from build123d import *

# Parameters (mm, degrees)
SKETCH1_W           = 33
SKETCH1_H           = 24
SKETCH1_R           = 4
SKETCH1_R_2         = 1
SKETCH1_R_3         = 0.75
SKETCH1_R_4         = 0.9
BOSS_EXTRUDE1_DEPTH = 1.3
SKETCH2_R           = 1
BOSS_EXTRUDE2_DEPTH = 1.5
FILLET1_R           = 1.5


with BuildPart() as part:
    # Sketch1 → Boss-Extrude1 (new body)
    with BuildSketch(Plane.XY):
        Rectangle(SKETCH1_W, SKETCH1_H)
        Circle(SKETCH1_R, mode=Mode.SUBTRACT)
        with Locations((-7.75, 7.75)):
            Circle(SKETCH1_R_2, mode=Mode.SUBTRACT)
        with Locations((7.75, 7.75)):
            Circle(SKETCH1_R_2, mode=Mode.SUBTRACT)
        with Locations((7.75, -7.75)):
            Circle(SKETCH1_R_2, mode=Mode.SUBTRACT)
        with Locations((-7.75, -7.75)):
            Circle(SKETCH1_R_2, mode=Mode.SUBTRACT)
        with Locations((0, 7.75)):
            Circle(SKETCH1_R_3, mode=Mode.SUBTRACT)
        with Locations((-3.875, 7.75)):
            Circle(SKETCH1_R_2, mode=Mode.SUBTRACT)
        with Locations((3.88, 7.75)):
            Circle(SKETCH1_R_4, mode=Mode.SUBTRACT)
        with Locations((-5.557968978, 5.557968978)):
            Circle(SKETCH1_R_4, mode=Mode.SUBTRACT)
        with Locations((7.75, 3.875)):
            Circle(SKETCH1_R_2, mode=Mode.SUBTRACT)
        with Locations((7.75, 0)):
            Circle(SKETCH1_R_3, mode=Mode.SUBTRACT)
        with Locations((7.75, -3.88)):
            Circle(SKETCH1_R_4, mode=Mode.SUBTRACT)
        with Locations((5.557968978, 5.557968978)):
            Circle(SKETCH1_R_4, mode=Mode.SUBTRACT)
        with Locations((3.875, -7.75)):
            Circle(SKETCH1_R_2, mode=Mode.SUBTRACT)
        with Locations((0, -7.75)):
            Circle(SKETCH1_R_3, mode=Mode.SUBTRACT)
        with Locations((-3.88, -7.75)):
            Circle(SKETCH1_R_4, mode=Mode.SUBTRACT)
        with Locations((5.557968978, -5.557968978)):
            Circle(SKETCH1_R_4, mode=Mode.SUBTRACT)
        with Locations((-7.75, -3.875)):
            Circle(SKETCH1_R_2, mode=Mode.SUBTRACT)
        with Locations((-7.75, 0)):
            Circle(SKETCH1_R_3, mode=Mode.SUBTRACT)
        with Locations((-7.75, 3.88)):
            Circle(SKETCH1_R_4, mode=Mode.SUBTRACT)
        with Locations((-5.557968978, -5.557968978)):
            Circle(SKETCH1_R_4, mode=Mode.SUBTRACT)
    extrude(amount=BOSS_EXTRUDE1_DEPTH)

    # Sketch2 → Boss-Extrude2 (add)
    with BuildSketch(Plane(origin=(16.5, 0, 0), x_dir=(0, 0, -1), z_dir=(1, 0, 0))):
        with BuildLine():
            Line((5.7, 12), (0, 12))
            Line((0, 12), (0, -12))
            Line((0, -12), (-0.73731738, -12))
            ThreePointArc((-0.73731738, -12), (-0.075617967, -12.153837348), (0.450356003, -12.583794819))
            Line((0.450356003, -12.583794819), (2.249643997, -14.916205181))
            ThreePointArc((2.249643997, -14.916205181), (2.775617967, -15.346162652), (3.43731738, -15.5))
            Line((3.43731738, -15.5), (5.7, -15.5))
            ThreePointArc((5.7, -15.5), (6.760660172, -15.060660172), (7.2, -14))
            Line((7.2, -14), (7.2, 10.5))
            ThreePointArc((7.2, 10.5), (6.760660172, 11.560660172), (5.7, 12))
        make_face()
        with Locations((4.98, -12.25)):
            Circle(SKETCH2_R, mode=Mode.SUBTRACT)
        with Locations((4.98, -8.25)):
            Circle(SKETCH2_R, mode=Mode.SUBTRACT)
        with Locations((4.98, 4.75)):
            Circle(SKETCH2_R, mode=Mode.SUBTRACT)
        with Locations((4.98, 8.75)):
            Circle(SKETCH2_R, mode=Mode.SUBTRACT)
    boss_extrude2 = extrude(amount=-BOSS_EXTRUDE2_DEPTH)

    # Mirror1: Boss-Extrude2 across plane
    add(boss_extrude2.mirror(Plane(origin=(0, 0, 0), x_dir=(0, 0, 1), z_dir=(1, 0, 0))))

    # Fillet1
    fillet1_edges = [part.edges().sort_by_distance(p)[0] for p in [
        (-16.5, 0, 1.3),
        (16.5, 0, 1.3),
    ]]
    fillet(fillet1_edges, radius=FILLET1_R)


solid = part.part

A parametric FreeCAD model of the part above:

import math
import FreeCAD as App
import Part
import Sketcher

V = App.Vector


def edges_at(feature, points):
    """Names of the edges that pass closest to the given points."""
    edges = feature.Shape.Edges
    near = lambda p: min(range(len(edges)), key=lambda i: edges[i].distToShape(Part.Vertex(*p))[0])
    return sorted({f"Edge{near(p) + 1}" for p in points})


def add_polygon(sketch, points):
    """Adds a closed chain of lines whose ends are joined by coincident constraints."""
    first, n = sketch.GeometryCount, len(points)
    for a, b in zip(points, points[1:] + points[:1]):
        sketch.addGeometry(Part.LineSegment(App.Vector(*a, 0), App.Vector(*b, 0)), False)
    for i in range(n):
        sketch.addConstraint(Sketcher.Constraint("Coincident", first + i, 2, first + (i + 1) % n, 1))

doc = App.newDocument("Part")
body = doc.addObject("PartDesign::Body", "Body")

# Sketch on XY plane
sketch1 = doc.addObject("Sketcher::SketchObject", "Sketch")
body.addObject(sketch1)
sketch1.AttachmentSupport = (doc.XY_Plane, [""])
sketch1.MapMode = "FlatFace"
add_polygon(sketch1, [(-16.5, 12), (-16.5, -12), (16.5, -12), (16.5, 12)])  # lines 0-3
sketch1.addGeometry(Part.Circle(V(-7.75, -7.75, 0), V(0, 0, 1), 1), False)  # 4
sketch1.addGeometry(Part.Circle(V(-5.557969, -5.557969, 0), V(0, 0, 1), 0.9), False)  # 5
sketch1.addGeometry(Part.Circle(V(-3.88, -7.75, 0), V(0, 0, 1), 0.9), False)  # 6
sketch1.addGeometry(Part.Circle(V(-7.75, -3.875, 0), V(0, 0, 1), 1), False)  # 7
sketch1.addGeometry(Part.Circle(V(0, -7.75, 0), V(0, 0, 1), 0.75), False)  # 8
sketch1.addGeometry(Part.Circle(V(3.875, -7.75, 0), V(0, 0, 1), 1), False)  # 9
sketch1.addGeometry(Part.Circle(V(7.75, -7.75, 0), V(0, 0, 1), 1), False)  # 10
sketch1.addGeometry(Part.Circle(V(5.557969, -5.557969, 0), V(0, 0, 1), 0.9), False)  # 11
sketch1.addGeometry(Part.Circle(V(7.75, -3.88, 0), V(0, 0, 1), 0.9), False)  # 12
sketch1.addGeometry(Part.Circle(V(-7.75, 0, 0), V(0, 0, 1), 0.75), False)  # 13
sketch1.addGeometry(Part.Circle(V(-7.75, 3.88, 0), V(0, 0, 1), 0.9), False)  # 14
sketch1.addGeometry(Part.Circle(V(-5.557969, 5.557969, 0), V(0, 0, 1), 0.9), False)  # 15
sketch1.addGeometry(Part.Circle(V(-7.75, 7.75, 0), V(0, 0, 1), 1), False)  # 16
sketch1.addGeometry(Part.Circle(V(-3.875, 7.75, 0), V(0, 0, 1), 1), False)  # 17
sketch1.addGeometry(Part.Circle(V(0, 0, 0), V(0, 0, 1), 4), False)  # 18
sketch1.addGeometry(Part.Circle(V(7.75, 0, 0), V(0, 0, 1), 0.75), False)  # 19
sketch1.addGeometry(Part.Circle(V(7.75, 3.875, 0), V(0, 0, 1), 1), False)  # 20
sketch1.addGeometry(Part.Circle(V(0, 7.75, 0), V(0, 0, 1), 0.75), False)  # 21
sketch1.addGeometry(Part.Circle(V(3.88, 7.75, 0), V(0, 0, 1), 0.9), False)  # 22
sketch1.addGeometry(Part.Circle(V(5.557969, 5.557969, 0), V(0, 0, 1), 0.9), False)  # 23
sketch1.addGeometry(Part.Circle(V(7.75, 7.75, 0), V(0, 0, 1), 1), False)  # 24
sketch1.addConstraint(Sketcher.Constraint("Vertical", 0))
sketch1.addConstraint(Sketcher.Constraint("Horizontal", 1))
sketch1.addConstraint(Sketcher.Constraint("Vertical", 2))
sketch1.addConstraint(Sketcher.Constraint("Horizontal", 3))
sketch1.addConstraint(Sketcher.Constraint("Coincident", 18, 3, -1, 1))
sketch1.addConstraint(Sketcher.Constraint("Equal", 5, 6))
sketch1.addConstraint(Sketcher.Constraint("Equal", 4, 7))
sketch1.addConstraint(Sketcher.Constraint("Equal", 7, 9))
sketch1.addConstraint(Sketcher.Constraint("Equal", 9, 10))
sketch1.addConstraint(Sketcher.Constraint("Equal", 6, 11))
sketch1.addConstraint(Sketcher.Constraint("Equal", 11, 12))
sketch1.addConstraint(Sketcher.Constraint("Equal", 8, 13))
sketch1.addConstraint(Sketcher.Constraint("Equal", 12, 14))
sketch1.addConstraint(Sketcher.Constraint("Equal", 14, 15))
sketch1.addConstraint(Sketcher.Constraint("Equal", 10, 16))
sketch1.addConstraint(Sketcher.Constraint("Equal", 16, 17))
sketch1.addConstraint(Sketcher.Constraint("Equal", 13, 19))
sketch1.addConstraint(Sketcher.Constraint("Equal", 17, 20))
sketch1.addConstraint(Sketcher.Constraint("Equal", 19, 21))
sketch1.addConstraint(Sketcher.Constraint("Equal", 15, 22))
sketch1.addConstraint(Sketcher.Constraint("Equal", 22, 23))
sketch1.addConstraint(Sketcher.Constraint("Equal", 20, 24))
sketch1.addConstraint(Sketcher.Constraint("Symmetric", 12, 3, 14, 3, -1, 1))
sketch1.addConstraint(Sketcher.Constraint("Symmetric", 11, 3, 15, 3, -1, 1))
sketch1.addConstraint(Sketcher.Constraint("Symmetric", 10, 3, 16, 3, -1, 1))
sketch1.addConstraint(Sketcher.Constraint("Symmetric", 9, 3, 17, 3, -1, 1))
sketch1.addConstraint(Sketcher.Constraint("Symmetric", 13, 3, 19, 3, -1, 1))
sketch1.addConstraint(Sketcher.Constraint("Symmetric", 7, 3, 20, 3, -1, 1))
sketch1.addConstraint(Sketcher.Constraint("Symmetric", 8, 3, 21, 3, -1, 1))
sketch1.addConstraint(Sketcher.Constraint("Symmetric", 6, 3, 22, 3, -1, 1))
sketch1.addConstraint(Sketcher.Constraint("Symmetric", 5, 3, 23, 3, -1, 1))
sketch1.addConstraint(Sketcher.Constraint("Symmetric", 4, 3, 24, 3, -1, 1))
sketch1.addConstraint(Sketcher.Constraint("Symmetric", 0, 2, 2, 2, -1, 1))
sketch1.addConstraint(Sketcher.Constraint("Symmetric", 4, 3, 10, 3, -2))
sketch1.addConstraint(Sketcher.Constraint("Symmetric", 5, 3, 11, 3, -2))
sketch1.addConstraint(Sketcher.Constraint("PointOnObject", 8, 3, -2))
sketch1.addConstraint(Sketcher.Constraint("PointOnObject", 13, 3, -1))
sketch1.addConstraint(Sketcher.Constraint("Horizontal", 4, 3, 6, 3))
sketch1.addConstraint(Sketcher.Constraint("Horizontal", 6, 3, 8, 3))
sketch1.addConstraint(Sketcher.Constraint("Horizontal", 8, 3, 9, 3))
sketch1.addConstraint(Sketcher.Constraint("Vertical", 4, 3, 7, 3))
sketch1.addConstraint(Sketcher.Constraint("Vertical", 10, 3, 12, 3))
sketch1.addConstraint(Sketcher.Constraint("Vertical", 7, 3, 13, 3))
sketch1.addConstraint(Sketcher.Constraint("Diameter", 4, 2.0))
sketch1.addConstraint(Sketcher.Constraint("Diameter", 18, 8.0))
sketch1.addConstraint(Sketcher.Constraint("Diameter", 5, 1.8))
sketch1.addConstraint(Sketcher.Constraint("Diameter", 8, 1.5))
sketch1.addConstraint(Sketcher.Constraint("DistanceX", 1, 1, 1, 2, 33.0))
sketch1.addConstraint(Sketcher.Constraint("DistanceY", 0, 2, 0, 1, 24.0))
sketch1.addConstraint(Sketcher.Constraint("DistanceX", 4, 3, 10, 3, 15.5))
sketch1.addConstraint(Sketcher.Constraint("DistanceY", 4, 3, -1, 1, 7.75))
sketch1.addConstraint(Sketcher.Constraint("DistanceX", 6, 3, -1, 1, 3.88))
sketch1.addConstraint(Sketcher.Constraint("DistanceY", 12, 3, -1, 1, 3.88))
sketch1.addConstraint(Sketcher.Constraint("DistanceY", 7, 3, -1, 1, 3.875))
sketch1.addConstraint(Sketcher.Constraint("DistanceX", -1, 1, 9, 3, 3.875))
sketch1.addConstraint(Sketcher.Constraint("DistanceX", 5, 3, -1, 1, 5.557969))
sketch1.addConstraint(Sketcher.Constraint("DistanceY", 5, 3, -1, 1, 5.557969))
pad1 = doc.addObject("PartDesign::Pad", "Pad")
body.addObject(pad1)
pad1.Profile = sketch1
pad1.Length = 1.3

# Sketch on YZ plane
sketch2 = doc.addObject("Sketcher::SketchObject", "Sketch001")
body.addObject(sketch2)
sketch2.AttachmentSupport = (doc.YZ_Plane, [""])
sketch2.MapMode = "FlatFace"
sketch2.AttachmentOffset = App.Placement(V(0, 0, 16.5), App.Rotation())
sketch2.addGeometry(Part.LineSegment(V(12, -5.7, 0), V(12, 0, 0)), False)
sketch2.addGeometry(Part.LineSegment(V(12, 0, 0), V(-12, 0, 0)), False)
sketch2.addGeometry(Part.LineSegment(V(-12, 0, 0), V(-12, 0.737317, 0)), False)
sketch2.addGeometry(Part.ArcOfCircle(Part.Circle(V(-13.5, 0.737317, 0), V(0, 0, 1), 1.5), math.radians(-52.352379), math.radians(0)), False)
sketch2.addGeometry(Part.LineSegment(V(-12.583795, -0.450356, 0), V(-14.916205, -2.249644, 0)), False)
sketch2.addGeometry(Part.ArcOfCircle(Part.Circle(V(-14, -3.437317, 0), V(0, 0, 1), 1.5), math.radians(127.647621), math.radians(180)), False)
sketch2.addGeometry(Part.LineSegment(V(-15.5, -3.437317, 0), V(-15.5, -5.7, 0)), False)
sketch2.addGeometry(Part.ArcOfCircle(Part.Circle(V(-14, -5.7, 0), V(0, 0, 1), 1.5), math.radians(180), math.radians(270)), False)
sketch2.addGeometry(Part.LineSegment(V(-14, -7.2, 0), V(10.5, -7.2, 0)), False)
sketch2.addGeometry(Part.ArcOfCircle(Part.Circle(V(10.5, -5.7, 0), V(0, 0, 1), 1.5), math.radians(-90), math.radians(0)), False)
sketch2.addGeometry(Part.Circle(V(-12.25, -4.98, 0), V(0, 0, 1), 1), False)
sketch2.addGeometry(Part.Circle(V(-8.25, -4.98, 0), V(0, 0, 1), 1), False)
sketch2.addGeometry(Part.Circle(V(4.75, -4.98, 0), V(0, 0, 1), 1), False)
sketch2.addGeometry(Part.Circle(V(8.75, -4.98, 0), V(0, 0, 1), 1), False)
sketch2.addConstraint(Sketcher.Constraint("Coincident", 0, 2, 1, 1))
sketch2.addConstraint(Sketcher.Constraint("Coincident", 1, 2, 2, 1))
sketch2.addConstraint(Sketcher.Constraint("Tangent", 2, 2, 3, 2))
sketch2.addConstraint(Sketcher.Constraint("Tangent", 3, 1, 4, 1))
sketch2.addConstraint(Sketcher.Constraint("Tangent", 4, 2, 5, 1))
sketch2.addConstraint(Sketcher.Constraint("Tangent", 5, 2, 6, 1))
sketch2.addConstraint(Sketcher.Constraint("Tangent", 6, 2, 7, 1))
sketch2.addConstraint(Sketcher.Constraint("Tangent", 7, 2, 8, 1))
sketch2.addConstraint(Sketcher.Constraint("Tangent", 8, 2, 9, 1))
sketch2.addConstraint(Sketcher.Constraint("Tangent", 9, 2, 0, 1))
sketch2.addConstraint(Sketcher.Constraint("Vertical", 0))
sketch2.addConstraint(Sketcher.Constraint("Horizontal", 1))
sketch2.addConstraint(Sketcher.Constraint("Vertical", 2))
sketch2.addConstraint(Sketcher.Constraint("Vertical", 6))
sketch2.addConstraint(Sketcher.Constraint("Horizontal", 8))
sketch2.addConstraint(Sketcher.Constraint("Equal", 3, 5))
sketch2.addConstraint(Sketcher.Constraint("Equal", 5, 7))
sketch2.addConstraint(Sketcher.Constraint("Equal", 7, 9))
sketch2.addConstraint(Sketcher.Constraint("Equal", 10, 11))
sketch2.addConstraint(Sketcher.Constraint("Equal", 11, 12))
sketch2.addConstraint(Sketcher.Constraint("Equal", 12, 13))
sketch2.addConstraint(Sketcher.Constraint("Symmetric", 0, 2, 1, 2, -1, 1))
sketch2.addConstraint(Sketcher.Constraint("Horizontal", 10, 3, 11, 3))
sketch2.addConstraint(Sketcher.Constraint("Horizontal", 11, 3, 12, 3))
sketch2.addConstraint(Sketcher.Constraint("Horizontal", 12, 3, 13, 3))
sketch2.addConstraint(Sketcher.Constraint("Diameter", 10, 2.0))
sketch2.addConstraint(Sketcher.Constraint("Radius", 3, 1.5))
sketch2.addConstraint(Sketcher.Constraint("DistanceX", 1, 2, 1, 1, 24.0))
sketch2.addConstraint(Sketcher.Constraint("DistanceX", 8, 1, 8, 2, 24.5))
sketch2.addConstraint(Sketcher.Constraint("DistanceY", 0, 1, 0, 2, 5.7))
sketch2.addConstraint(Sketcher.Constraint("DistanceX", 10, 3, 11, 3, 4.0))
sketch2.addConstraint(Sketcher.Constraint("DistanceX", 11, 3, 12, 3, 13.0))
sketch2.addConstraint(Sketcher.Constraint("DistanceX", 12, 3, 13, 3, 4.0))
sketch2.addConstraint(Sketcher.Constraint("DistanceX", 10, 3, -1, 1, 12.25))
sketch2.addConstraint(Sketcher.Constraint("DistanceY", 10, 3, -1, 1, 4.98))
sketch2.addConstraint(Sketcher.Constraint("DistanceY", 2, 1, 2, 2, 0.737317))
sketch2.addConstraint(Sketcher.Constraint("DistanceY", 6, 2, 6, 1, 2.262683))
pad2 = doc.addObject("PartDesign::Pad", "Pad001")
body.addObject(pad2)
pad2.Profile = sketch2
pad2.Length = 1.5
pad2.Reversed = True
doc.recompute()

mirrored = doc.addObject("PartDesign::Mirrored", "Mirrored")
body.addObject(mirrored)
mirrored.Originals = [pad2]
mirrored.MirrorPlane = (doc.YZ_Plane, [""])
body.Tip = mirrored
doc.recompute()

fillet = doc.addObject("PartDesign::Fillet", "Fillet")
body.addObject(fillet)
fillet.Base = (mirrored, edges_at(mirrored, [(-16.5, 0, 1.3), (16.5, 0, 1.3)]))
fillet.Radius = 1.5

doc.recompute()
